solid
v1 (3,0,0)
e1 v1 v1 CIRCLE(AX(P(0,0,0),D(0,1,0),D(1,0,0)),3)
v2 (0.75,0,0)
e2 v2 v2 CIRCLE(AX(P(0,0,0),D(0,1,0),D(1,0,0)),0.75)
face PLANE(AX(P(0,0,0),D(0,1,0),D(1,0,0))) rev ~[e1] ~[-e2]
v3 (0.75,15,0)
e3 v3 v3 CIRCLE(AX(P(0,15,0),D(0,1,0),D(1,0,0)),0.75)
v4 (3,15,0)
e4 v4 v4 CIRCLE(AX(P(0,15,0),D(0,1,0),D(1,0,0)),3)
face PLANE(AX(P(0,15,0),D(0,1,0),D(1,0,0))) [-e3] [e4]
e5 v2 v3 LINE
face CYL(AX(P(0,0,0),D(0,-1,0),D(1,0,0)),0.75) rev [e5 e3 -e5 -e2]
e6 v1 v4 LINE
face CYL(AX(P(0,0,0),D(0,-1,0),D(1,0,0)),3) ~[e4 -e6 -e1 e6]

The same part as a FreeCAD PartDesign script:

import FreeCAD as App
import Part
import Sketcher

doc = App.newDocument("Part")
body = doc.addObject("PartDesign::Body", "Body")

sketch1 = doc.addObject("Sketcher::SketchObject", "Sketch")
body.addObject(sketch1)
sketch1.AttachmentSupport = (doc.XZ_Plane, [""])
sketch1.MapMode = "FlatFace"
sketch1.addGeometry([
    Part.Circle(App.Vector(0, 0, 0), App.Vector(0, 0, 1), 3),
    Part.Circle(App.Vector(0, 0, 0), App.Vector(0, 0, 1), 0.8),
], False)
sketch1.addConstraint([
    Sketcher.Constraint("Coincident", 0, 3, -1, 1),
    Sketcher.Constraint("Coincident", 1, 3, -1, 1),
    Sketcher.Constraint("Diameter", 0, 6.0),
    Sketcher.Constraint("Diameter", 1, 1.5),
])
pad1 = doc.addObject("PartDesign::Pad", "Pad")
body.addObject(pad1)
pad1.Profile = sketch1
pad1.Length = 15
pad1.Reversed = True

doc.recompute()
